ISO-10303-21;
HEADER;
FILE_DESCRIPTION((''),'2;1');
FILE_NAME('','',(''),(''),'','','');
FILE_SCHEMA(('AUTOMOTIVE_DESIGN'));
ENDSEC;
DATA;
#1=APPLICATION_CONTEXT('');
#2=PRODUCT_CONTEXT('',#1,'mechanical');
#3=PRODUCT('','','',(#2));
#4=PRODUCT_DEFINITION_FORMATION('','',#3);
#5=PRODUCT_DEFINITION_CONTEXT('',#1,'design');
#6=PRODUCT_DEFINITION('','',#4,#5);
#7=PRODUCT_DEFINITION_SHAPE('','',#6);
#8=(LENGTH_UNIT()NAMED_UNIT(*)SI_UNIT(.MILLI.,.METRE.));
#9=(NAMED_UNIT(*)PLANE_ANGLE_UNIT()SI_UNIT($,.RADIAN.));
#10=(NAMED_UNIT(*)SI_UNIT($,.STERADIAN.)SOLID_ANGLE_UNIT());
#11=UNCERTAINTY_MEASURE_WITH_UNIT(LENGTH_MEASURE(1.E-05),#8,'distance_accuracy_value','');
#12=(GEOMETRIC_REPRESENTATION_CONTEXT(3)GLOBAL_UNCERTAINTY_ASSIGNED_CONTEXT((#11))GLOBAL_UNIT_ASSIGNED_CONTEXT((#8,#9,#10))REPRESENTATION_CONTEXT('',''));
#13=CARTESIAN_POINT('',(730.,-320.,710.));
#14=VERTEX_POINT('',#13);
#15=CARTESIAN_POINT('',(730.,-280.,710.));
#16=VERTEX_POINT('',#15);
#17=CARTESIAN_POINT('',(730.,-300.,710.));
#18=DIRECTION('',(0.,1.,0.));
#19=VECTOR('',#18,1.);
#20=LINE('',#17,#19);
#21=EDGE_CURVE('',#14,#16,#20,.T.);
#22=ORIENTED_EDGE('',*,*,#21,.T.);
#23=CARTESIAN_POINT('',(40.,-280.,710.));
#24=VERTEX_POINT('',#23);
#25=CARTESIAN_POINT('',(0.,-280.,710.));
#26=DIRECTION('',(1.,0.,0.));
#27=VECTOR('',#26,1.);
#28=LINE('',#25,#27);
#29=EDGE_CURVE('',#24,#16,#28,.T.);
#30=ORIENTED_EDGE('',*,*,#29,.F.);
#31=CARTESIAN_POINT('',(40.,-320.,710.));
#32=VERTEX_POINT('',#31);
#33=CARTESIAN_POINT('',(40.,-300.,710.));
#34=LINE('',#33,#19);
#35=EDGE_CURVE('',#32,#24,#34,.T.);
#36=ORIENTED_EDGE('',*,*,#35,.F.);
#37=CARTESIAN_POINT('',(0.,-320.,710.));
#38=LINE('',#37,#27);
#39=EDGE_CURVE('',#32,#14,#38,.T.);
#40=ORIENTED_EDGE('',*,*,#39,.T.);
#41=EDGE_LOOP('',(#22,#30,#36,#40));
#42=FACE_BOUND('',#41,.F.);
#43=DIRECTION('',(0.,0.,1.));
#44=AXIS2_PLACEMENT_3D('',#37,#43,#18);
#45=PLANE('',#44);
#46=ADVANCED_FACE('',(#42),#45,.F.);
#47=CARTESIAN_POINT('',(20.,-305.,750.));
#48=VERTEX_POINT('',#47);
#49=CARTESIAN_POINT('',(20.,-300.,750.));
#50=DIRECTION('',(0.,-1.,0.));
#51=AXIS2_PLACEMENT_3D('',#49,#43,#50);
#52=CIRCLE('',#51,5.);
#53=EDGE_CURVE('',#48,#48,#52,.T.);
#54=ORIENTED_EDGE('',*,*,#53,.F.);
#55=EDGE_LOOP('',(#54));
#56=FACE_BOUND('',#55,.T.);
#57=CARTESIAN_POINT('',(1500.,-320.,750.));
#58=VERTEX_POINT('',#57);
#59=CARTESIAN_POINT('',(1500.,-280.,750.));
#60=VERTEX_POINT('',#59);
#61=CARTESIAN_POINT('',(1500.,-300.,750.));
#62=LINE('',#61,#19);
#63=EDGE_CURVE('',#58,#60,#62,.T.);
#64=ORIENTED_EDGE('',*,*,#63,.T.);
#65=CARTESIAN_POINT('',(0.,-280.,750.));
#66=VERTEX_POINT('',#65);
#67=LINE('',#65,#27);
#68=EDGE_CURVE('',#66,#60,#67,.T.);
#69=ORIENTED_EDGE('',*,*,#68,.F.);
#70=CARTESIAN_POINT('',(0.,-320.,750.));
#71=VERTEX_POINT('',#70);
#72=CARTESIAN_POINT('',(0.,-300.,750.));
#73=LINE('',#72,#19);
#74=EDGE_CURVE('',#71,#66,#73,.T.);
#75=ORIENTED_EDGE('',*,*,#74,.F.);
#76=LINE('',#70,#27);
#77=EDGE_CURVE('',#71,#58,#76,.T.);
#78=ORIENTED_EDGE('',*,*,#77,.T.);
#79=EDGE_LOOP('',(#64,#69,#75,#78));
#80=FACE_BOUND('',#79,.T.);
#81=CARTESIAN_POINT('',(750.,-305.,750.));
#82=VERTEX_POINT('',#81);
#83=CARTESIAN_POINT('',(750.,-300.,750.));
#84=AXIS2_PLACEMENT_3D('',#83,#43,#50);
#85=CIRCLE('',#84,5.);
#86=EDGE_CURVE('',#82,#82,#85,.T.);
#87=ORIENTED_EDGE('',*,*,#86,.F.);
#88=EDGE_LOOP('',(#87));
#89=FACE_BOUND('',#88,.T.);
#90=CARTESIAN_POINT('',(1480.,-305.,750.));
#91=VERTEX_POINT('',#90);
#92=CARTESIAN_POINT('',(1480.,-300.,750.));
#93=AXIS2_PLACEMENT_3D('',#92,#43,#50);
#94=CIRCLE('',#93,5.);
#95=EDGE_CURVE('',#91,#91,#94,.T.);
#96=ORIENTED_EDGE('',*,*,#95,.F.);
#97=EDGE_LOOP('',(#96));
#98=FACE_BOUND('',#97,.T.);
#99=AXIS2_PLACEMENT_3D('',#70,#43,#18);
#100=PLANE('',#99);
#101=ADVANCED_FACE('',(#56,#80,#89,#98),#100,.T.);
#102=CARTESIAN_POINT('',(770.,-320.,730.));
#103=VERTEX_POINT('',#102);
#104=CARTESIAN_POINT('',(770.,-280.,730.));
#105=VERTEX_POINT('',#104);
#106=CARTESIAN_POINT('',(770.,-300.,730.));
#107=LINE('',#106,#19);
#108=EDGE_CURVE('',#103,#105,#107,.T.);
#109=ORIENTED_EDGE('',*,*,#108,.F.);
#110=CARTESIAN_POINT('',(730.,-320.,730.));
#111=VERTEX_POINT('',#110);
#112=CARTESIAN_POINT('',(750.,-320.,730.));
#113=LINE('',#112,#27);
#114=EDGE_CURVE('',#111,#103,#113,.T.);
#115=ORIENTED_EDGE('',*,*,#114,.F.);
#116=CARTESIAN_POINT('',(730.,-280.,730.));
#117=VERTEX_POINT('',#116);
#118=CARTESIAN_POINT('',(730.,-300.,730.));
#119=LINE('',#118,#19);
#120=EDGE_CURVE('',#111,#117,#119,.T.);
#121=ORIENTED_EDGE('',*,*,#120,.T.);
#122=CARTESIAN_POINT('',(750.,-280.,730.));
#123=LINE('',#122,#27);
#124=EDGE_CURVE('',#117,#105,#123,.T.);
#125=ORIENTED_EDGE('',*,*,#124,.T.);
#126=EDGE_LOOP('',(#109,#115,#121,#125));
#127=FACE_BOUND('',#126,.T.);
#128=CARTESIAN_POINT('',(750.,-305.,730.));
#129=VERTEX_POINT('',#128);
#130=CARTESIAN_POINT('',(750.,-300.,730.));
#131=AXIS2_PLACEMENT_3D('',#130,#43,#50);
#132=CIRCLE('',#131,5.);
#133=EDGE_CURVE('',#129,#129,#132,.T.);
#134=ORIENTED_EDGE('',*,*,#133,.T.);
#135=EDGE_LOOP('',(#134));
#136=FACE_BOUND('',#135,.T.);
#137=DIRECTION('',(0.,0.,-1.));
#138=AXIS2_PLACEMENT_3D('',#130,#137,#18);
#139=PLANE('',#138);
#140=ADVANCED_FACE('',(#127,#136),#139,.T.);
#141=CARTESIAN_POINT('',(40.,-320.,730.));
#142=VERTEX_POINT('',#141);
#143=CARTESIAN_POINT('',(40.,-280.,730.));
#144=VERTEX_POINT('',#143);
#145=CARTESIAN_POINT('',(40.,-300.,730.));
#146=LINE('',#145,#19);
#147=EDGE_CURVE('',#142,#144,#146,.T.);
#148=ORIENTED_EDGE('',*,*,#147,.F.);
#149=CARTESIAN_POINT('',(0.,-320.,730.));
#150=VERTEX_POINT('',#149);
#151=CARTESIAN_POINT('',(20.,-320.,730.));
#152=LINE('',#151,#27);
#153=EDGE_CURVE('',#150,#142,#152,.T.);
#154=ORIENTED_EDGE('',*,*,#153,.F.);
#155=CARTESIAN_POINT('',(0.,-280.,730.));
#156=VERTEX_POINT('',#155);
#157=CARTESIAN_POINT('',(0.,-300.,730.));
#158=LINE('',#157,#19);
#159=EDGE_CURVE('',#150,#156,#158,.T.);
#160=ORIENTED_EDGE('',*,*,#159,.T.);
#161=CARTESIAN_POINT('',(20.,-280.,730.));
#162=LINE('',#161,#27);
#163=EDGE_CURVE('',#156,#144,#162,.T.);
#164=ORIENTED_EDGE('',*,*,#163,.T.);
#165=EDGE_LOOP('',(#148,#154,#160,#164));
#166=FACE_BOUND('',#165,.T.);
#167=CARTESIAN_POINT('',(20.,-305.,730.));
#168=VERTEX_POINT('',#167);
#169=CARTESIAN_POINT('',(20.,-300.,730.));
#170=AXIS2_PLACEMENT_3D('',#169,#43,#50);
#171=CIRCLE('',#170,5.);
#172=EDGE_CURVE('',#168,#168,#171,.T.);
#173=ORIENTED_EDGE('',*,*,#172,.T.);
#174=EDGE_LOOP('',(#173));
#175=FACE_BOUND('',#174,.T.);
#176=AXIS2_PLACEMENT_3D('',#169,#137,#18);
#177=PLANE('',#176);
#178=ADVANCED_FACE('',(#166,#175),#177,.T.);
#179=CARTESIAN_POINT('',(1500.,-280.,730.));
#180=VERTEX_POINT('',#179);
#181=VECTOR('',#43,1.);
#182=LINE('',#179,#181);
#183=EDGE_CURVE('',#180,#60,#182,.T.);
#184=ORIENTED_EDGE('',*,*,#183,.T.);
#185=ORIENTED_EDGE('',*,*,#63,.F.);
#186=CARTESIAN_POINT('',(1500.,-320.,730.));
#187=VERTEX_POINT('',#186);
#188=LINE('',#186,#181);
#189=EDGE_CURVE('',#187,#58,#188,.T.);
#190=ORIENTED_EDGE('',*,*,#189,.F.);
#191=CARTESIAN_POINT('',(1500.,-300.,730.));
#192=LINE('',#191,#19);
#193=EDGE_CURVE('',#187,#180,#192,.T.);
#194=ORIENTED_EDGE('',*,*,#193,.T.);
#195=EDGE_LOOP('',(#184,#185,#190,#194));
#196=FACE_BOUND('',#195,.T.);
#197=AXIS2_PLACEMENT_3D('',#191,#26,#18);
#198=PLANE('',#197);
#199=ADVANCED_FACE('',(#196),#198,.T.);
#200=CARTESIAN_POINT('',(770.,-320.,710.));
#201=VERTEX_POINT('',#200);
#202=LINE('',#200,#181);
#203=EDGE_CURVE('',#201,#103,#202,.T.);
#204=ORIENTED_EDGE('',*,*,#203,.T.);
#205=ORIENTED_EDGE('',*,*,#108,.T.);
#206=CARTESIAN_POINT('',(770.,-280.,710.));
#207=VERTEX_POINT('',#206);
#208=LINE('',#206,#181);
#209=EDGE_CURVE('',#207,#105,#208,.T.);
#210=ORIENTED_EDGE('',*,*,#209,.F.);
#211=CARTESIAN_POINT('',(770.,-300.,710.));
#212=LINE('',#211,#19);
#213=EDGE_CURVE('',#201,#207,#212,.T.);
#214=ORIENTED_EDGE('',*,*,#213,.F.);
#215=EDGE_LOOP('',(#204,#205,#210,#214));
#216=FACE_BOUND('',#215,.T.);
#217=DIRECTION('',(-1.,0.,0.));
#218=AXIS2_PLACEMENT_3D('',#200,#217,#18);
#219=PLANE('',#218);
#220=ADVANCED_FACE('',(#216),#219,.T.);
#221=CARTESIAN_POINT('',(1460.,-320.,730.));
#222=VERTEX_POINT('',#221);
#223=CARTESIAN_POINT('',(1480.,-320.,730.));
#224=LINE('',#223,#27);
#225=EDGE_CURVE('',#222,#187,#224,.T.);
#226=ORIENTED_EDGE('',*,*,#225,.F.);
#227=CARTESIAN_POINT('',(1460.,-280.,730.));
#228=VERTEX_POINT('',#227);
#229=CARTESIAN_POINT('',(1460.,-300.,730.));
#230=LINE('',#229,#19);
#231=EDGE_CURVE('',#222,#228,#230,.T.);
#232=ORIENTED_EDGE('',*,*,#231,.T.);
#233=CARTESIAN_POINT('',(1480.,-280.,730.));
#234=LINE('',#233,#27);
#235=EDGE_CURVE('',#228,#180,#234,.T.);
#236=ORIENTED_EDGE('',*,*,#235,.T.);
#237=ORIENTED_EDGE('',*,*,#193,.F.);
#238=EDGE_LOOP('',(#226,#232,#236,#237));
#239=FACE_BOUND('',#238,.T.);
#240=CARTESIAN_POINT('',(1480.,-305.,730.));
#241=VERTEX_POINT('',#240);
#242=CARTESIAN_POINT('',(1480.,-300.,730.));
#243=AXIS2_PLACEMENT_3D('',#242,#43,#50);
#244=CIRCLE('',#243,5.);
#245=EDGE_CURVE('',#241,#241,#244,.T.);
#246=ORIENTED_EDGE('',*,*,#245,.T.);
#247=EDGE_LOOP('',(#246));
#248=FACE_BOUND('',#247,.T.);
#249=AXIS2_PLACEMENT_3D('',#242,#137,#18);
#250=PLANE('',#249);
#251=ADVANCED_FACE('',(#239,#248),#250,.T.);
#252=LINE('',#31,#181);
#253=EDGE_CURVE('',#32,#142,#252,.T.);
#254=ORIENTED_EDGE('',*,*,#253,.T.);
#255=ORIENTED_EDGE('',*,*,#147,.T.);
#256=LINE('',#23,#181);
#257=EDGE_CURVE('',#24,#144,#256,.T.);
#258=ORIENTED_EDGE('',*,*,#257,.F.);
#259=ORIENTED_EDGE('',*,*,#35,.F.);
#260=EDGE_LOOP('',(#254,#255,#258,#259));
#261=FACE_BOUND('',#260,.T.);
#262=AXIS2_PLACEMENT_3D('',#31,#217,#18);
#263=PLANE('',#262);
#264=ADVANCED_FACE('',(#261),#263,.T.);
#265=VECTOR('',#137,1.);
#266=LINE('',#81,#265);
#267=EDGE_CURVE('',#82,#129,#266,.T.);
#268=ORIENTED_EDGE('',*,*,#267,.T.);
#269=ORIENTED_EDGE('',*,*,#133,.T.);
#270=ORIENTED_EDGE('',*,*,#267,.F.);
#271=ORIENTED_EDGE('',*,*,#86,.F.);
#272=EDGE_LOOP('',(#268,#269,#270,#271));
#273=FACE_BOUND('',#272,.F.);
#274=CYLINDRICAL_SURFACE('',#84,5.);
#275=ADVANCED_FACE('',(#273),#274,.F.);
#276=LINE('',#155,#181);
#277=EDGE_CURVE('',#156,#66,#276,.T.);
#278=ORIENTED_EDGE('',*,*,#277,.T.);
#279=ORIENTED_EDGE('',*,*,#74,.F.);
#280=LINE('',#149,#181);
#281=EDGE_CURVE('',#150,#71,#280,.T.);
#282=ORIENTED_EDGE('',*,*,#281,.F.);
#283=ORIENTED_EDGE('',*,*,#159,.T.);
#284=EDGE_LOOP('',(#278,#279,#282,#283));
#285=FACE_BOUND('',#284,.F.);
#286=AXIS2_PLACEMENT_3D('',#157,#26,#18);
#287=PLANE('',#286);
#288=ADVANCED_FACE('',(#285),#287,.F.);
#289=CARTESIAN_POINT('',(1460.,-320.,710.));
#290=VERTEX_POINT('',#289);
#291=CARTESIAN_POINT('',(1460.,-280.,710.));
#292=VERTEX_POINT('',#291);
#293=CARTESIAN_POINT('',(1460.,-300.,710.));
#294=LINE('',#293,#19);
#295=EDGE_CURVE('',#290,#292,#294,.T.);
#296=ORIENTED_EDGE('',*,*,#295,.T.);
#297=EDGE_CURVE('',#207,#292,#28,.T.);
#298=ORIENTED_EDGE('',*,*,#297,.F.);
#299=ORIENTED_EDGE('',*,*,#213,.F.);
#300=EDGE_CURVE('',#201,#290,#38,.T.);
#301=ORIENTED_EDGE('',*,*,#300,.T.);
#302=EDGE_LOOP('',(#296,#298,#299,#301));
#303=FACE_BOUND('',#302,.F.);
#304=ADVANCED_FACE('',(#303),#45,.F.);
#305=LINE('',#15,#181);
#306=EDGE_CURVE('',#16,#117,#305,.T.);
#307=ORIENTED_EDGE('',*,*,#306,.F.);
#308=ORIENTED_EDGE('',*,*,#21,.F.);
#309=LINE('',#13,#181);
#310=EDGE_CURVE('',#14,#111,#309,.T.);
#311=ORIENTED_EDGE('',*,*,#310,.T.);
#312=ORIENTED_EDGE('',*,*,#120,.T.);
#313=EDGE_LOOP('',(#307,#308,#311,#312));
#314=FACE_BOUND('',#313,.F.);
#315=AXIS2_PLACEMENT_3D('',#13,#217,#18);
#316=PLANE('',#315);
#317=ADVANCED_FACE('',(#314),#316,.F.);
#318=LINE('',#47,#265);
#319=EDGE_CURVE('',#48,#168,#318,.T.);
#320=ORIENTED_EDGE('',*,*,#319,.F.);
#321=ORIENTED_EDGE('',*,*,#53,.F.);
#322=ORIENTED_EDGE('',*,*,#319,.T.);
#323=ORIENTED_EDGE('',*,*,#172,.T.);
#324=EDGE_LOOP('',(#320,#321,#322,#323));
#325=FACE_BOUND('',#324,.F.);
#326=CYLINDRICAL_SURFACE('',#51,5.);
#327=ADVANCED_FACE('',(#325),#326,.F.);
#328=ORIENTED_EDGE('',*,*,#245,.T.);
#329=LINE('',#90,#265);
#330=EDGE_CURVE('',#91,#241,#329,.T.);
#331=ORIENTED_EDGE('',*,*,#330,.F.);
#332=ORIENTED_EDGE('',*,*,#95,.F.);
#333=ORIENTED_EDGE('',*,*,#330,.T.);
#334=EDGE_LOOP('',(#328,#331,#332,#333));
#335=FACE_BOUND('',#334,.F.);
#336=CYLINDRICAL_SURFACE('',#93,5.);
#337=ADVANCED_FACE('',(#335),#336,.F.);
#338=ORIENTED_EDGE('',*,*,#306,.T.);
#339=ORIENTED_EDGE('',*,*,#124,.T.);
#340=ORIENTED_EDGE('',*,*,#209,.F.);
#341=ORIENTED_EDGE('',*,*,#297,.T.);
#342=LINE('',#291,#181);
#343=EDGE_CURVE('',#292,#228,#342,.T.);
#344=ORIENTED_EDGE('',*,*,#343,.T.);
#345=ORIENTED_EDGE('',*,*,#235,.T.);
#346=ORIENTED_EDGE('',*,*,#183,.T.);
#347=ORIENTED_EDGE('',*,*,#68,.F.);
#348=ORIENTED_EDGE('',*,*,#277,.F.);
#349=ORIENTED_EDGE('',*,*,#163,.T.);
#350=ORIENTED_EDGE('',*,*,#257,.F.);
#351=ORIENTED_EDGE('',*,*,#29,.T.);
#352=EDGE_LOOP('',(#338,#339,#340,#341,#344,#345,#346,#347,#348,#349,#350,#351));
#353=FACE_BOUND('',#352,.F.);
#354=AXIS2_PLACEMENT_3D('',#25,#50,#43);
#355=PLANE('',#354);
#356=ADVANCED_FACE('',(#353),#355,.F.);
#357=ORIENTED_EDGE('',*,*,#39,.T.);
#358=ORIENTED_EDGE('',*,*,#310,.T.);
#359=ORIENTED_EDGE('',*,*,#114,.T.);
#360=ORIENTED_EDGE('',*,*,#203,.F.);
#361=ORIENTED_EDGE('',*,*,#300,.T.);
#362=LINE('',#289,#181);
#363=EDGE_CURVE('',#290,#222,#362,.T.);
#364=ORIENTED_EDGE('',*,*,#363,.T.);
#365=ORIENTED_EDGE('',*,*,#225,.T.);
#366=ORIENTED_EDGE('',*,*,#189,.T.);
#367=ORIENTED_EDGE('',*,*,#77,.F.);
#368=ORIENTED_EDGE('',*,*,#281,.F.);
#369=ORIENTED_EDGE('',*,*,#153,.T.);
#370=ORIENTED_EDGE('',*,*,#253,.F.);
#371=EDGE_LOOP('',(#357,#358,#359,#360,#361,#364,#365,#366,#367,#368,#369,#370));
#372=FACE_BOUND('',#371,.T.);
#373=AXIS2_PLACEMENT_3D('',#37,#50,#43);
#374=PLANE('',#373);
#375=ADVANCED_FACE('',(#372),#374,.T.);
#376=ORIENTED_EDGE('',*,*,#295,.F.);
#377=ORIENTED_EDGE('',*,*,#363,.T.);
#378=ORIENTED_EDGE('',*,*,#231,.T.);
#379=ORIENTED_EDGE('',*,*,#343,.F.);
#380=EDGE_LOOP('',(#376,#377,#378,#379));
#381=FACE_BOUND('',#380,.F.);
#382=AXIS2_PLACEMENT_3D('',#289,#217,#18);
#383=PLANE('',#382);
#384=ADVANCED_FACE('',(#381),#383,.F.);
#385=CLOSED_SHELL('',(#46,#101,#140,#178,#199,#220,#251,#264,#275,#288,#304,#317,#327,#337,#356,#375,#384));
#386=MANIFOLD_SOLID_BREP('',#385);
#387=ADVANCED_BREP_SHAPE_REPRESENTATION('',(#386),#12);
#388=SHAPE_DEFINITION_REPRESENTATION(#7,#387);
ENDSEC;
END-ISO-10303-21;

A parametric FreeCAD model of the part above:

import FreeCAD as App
import Part
import Sketcher
from FreeCAD import Vector

doc = App.newDocument("Part")
body = doc.addObject("PartDesign::Body", "Body")

# Sketch on YZ plane
sketch1 = doc.addObject("Sketcher::SketchObject", "Sketch")
body.addObject(sketch1)
sketch1.AttachmentSupport = (doc.YZ_Plane, [""])
sketch1.MapMode = "FlatFace"
sketch1.addGeometry([
    Part.LineSegment(Vector(-320, 300, 0), Vector(-320, 260, 0)),
    Part.LineSegment(Vector(-320, 260, 0), Vector(-280, 260, 0)),
    Part.LineSegment(Vector(-280, 260, 0), Vector(-280, 300, 0)),
    Part.LineSegment(Vector(-280, 300, 0), Vector(-320, 300, 0)),
], False)
sketch1.addConstraint([
    Sketcher.Constraint("Coincident", 0, 2, 1, 1),
    Sketcher.Constraint("Coincident", 1, 2, 2, 1),
    Sketcher.Constraint("Coincident", 2, 2, 3, 1),
    Sketcher.Constraint("Coincident", 3, 2, 0, 1),
    Sketcher.Constraint("Vertical", 0),
    Sketcher.Constraint("Horizontal", 1),
    Sketcher.Constraint("Vertical", 2),
    Sketcher.Constraint("Horizontal", 3),
    Sketcher.Constraint("Equal", 3, 0),
    Sketcher.Constraint("DistanceX", 1, 1, 1, 2, 40.0),
    Sketcher.Constraint("DistanceX", 0, 2, -1, 1, 320.0),
    Sketcher.Constraint("DistanceY", -1, 1, 0, 2, 260.0),
])
pad1 = doc.addObject("PartDesign::Pad", "Pad")
body.addObject(pad1)
pad1.Profile = sketch1
pad1.Length = 1500

# Sketch on XY plane
sketch2 = doc.addObject("Sketcher::SketchObject", "Sketch001")
body.addObject(sketch2)
sketch2.AttachmentSupport = (doc.XY_Plane, [""])
sketch2.MapMode = "FlatFace"
sketch2.AttachmentOffset = App.Placement(Vector(0, 0, 260), App.Rotation())
sketch2.addGeometry([
    Part.LineSegment(Vector(1500, -320, 0), Vector(1460, -320, 0)),  # 0
    Part.LineSegment(Vector(1460, -320, 0), Vector(1460, -280, 0)),  # 1
    Part.LineSegment(Vector(1460, -280, 0), Vector(1500, -280, 0)),  # 2
    Part.LineSegment(Vector(1500, -280, 0), Vector(1500, -320, 0)),  # 3
    Part.LineSegment(Vector(770, -320, 0), Vector(730, -320, 0)),  # 4
    Part.LineSegment(Vector(730, -320, 0), Vector(730, -280, 0)),  # 5
    Part.LineSegment(Vector(730, -280, 0), Vector(770, -280, 0)),  # 6
    Part.LineSegment(Vector(770, -280, 0), Vector(770, -320, 0)),  # 7
    Part.LineSegment(Vector(40, -320, 0), Vector(0, -320, 0)),  # 8
    Part.LineSegment(Vector(0, -320, 0), Vector(0, -280, 0)),  # 9
    Part.LineSegment(Vector(0, -280, 0), Vector(40, -280, 0)),  # 10
    Part.LineSegment(Vector(40, -280, 0), Vector(40, -320, 0)),  # 11
], False)
sketch2.addConstraint([
    Sketcher.Constraint("Coincident", 0, 2, 1, 1),
    Sketcher.Constraint("Coincident", 1, 2, 2, 1),
    Sketcher.Constraint("Coincident", 2, 2, 3, 1),
    Sketcher.Constraint("Coincident", 3, 2, 0, 1),
    Sketcher.Constraint("Coincident", 4, 2, 5, 1),
    Sketcher.Constraint("Coincident", 5, 2, 6, 1),
    Sketcher.Constraint("Coincident", 6, 2, 7, 1),
    Sketcher.Constraint("Coincident", 7, 2, 4, 1),
    Sketcher.Constraint("Coincident", 8, 2, 9, 1),
    Sketcher.Constraint("Coincident", 9, 2, 10, 1),
    Sketcher.Constraint("Coincident", 10, 2, 11, 1),
    Sketcher.Constraint("Coincident", 11, 2, 8, 1),
    Sketcher.Constraint("Horizontal", 0),
    Sketcher.Constraint("Vertical", 1),
    Sketcher.Constraint("Horizontal", 2),
    Sketcher.Constraint("Vertical", 3),
    Sketcher.Constraint("Horizontal", 4),
    Sketcher.Constraint("Vertical", 5),
    Sketcher.Constraint("Horizontal", 6),
    Sketcher.Constraint("Vertical", 7),
    Sketcher.Constraint("Horizontal", 8),
    Sketcher.Constraint("Vertical", 9),
    Sketcher.Constraint("Horizontal", 10),
    Sketcher.Constraint("Vertical", 11),
    Sketcher.Constraint("PointOnObject", 8, 2, -2),
    Sketcher.Constraint("Horizontal", 3, 2, 4, 2),
    Sketcher.Constraint("Horizontal", 2, 2, 5, 2),
    Sketcher.Constraint("Horizontal", 7, 2, 8, 2),
    Sketcher.Constraint("Horizontal", 6, 2, 9, 2),
    Sketcher.Constraint("Equal", 2, 4),
    Sketcher.Constraint("Equal", 6, 8),
    Sketcher.Constraint("Equal", 10, 1),
    Sketcher.Constraint("DistanceX", 0, 2, 0, 1, 40.0),
    Sketcher.Constraint("DistanceX", -1, 1, 0, 2, 1460.0),
    Sketcher.Constraint("DistanceY", 0, 2, -1, 1, 320.0),
    Sketcher.Constraint("DistanceX", -1, 1, 4, 2, 730.0),
])
pocket1 = doc.addObject("PartDesign::Pocket", "Pocket")
body.addObject(pocket1)
pocket1.Profile = sketch2
pocket1.Length = 20
pocket1.Reversed = True

# Sketch on XY plane
sketch3 = doc.addObject("Sketcher::SketchObject", "Sketch002")
body.addObject(sketch3)
sketch3.AttachmentSupport = (doc.XY_Plane, [""])
sketch3.MapMode = "FlatFace"
sketch3.AttachmentOffset = App.Placement(Vector(0, 0, 300), App.Rotation())
sketch3.addGeometry([
    Part.Circle(Vector(20, -300, 0), Vector(0, 0, 1), 5),
    Part.Circle(Vector(750, -300, 0), Vector(0, 0, 1), 5),
    Part.Circle(Vector(1480, -300, 0), Vector(0, 0, 1), 5),
], False)
sketch3.addConstraint([
    Sketcher.Constraint("Equal", 0, 1),
    Sketcher.Constraint("Equal", 1, 2),
    Sketcher.Constraint("Horizontal", 0, 3, 1, 3),
    Sketcher.Constraint("Horizontal", 1, 3, 2, 3),
    Sketcher.Constraint("Diameter", 0, 10.0),
    Sketcher.Constraint("DistanceX", -1, 1, 0, 3, 20.0),
    Sketcher.Constraint("DistanceY", 0, 3, -1, 1, 300.0),
    Sketcher.Constraint("DistanceX", -1, 1, 1, 3, 750.0),
    Sketcher.Constraint("DistanceX", -1, 1, 2, 3, 1480.0),
])
pocket2 = doc.addObject("PartDesign::Pocket", "Pocket001")
body.addObject(pocket2)
pocket2.Profile = sketch3
pocket2.Type = "ThroughAll"
body2 = doc.addObject("PartDesign::Body", "Body001")
doc.recompute()

body.Placement = App.Placement(Vector(0, 0, 450), App.Rotation(Vector(0, 0, 1), 0))
boolean = doc.addObject("PartDesign::Boolean", "Boolean")
body2.addObject(boolean)
boolean.Type = "Fuse"
boolean.addObjects([body])

doc.recompute()
